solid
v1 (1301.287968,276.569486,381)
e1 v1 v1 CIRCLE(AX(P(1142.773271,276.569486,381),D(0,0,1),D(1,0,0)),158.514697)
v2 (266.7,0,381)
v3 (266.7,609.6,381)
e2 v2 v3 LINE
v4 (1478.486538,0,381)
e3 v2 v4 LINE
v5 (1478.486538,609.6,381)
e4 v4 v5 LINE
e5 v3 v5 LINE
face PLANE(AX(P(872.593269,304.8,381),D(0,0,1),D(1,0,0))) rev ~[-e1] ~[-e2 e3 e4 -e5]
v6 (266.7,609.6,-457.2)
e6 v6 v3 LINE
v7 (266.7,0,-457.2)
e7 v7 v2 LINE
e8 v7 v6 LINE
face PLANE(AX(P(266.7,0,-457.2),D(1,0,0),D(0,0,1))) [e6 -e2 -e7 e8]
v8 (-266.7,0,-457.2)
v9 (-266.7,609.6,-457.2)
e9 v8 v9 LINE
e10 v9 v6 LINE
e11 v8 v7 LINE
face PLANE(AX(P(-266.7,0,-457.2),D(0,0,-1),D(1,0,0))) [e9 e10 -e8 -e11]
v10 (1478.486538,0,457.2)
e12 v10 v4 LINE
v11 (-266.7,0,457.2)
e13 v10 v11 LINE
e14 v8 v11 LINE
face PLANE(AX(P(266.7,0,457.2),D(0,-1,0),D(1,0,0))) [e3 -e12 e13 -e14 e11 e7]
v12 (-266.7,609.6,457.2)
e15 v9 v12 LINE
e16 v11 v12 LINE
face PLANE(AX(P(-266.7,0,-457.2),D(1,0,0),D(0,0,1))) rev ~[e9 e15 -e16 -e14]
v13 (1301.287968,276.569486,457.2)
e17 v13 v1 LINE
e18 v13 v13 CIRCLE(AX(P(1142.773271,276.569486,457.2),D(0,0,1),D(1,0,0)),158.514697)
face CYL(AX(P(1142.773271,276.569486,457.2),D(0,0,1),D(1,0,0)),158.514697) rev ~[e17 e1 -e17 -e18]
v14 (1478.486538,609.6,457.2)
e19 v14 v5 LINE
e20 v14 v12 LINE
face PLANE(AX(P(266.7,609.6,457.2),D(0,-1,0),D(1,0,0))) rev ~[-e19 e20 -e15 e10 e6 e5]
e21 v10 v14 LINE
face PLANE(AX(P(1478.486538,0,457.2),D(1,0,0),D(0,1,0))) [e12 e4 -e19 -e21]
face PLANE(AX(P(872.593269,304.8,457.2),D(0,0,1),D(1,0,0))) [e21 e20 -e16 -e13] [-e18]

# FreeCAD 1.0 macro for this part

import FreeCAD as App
import Part
import Sketcher
from FreeCAD import Vector
Q = App.Units.Quantity


def add_polygon(sketch, points):
    """Adds a closed chain of lines whose ends are joined by coincident constraints."""
    first, n = sketch.GeometryCount, len(points)
    for a, b in zip(points, points[1:] + points[:1]):
        sketch.addGeometry(Part.LineSegment(App.Vector(*a, 0), App.Vector(*b, 0)), False)
    for i in range(n):
        sketch.addConstraint(Sketcher.Constraint("Coincident", first + i, 2, first + (i + 1) % n, 1))

doc = App.newDocument("Part")
body = doc.addObject("PartDesign::Body", "Body")

sketch1 = body.newObject("Sketcher::SketchObject", "Sketch")
sketch1.AttachmentSupport = (doc.getObject("XZ_Plane"), [""])
sketch1.MapMode = "FlatFace"
add_polygon(sketch1, [(-267, 457), (-267, -457), (267, -457), (267, 457)])
sketch1.addConstraint([
    Sketcher.Constraint("Vertical", 0),
    Sketcher.Constraint("Horizontal", 1),
    Sketcher.Constraint("Vertical", 2),
    Sketcher.Constraint("Horizontal", 3),
    Sketcher.Constraint("Symmetric", 0, 2, 2, 2, -1, 1),
    Sketcher.Constraint("DistanceX", 1, 1, 1, 2, Q("21 in")),
    Sketcher.Constraint("DistanceY", 0, 2, 0, 1, Q("36 in")),
])
pad1 = body.newObject("PartDesign::Pad", "Pad")
pad1.Profile = sketch1
pad1.Length = Q("24 in")
pad1.Reversed = True

sketch2 = body.newObject("Sketcher::SketchObject", "Sketch001")
sketch2.AttachmentSupport = (doc.getObject("XY_Plane"), [""])
sketch2.MapMode = "FlatFace"
sketch2.AttachmentOffset = App.Placement(Vector(0, 0, 18 * 25.4), App.Rotation())
add_polygon(sketch2, [(267, 610), (267, 0), (1478, 0), (1478, 610)])
sketch2.addConstraint([
    Sketcher.Constraint("Vertical", 0),
    Sketcher.Constraint("Horizontal", 1),
    Sketcher.Constraint("Vertical", 2),
    Sketcher.Constraint("Horizontal", 3),
    Sketcher.Constraint("PointOnObject", 0, 2, -1),
    Sketcher.Constraint("DistanceY", 0, 2, 0, 1, Q("24 in")),
    Sketcher.Constraint("DistanceX", -1, 1, 0, 2, Q("10.5 in")),
    Sketcher.Constraint("DistanceX", 1, 1, 1, 2, 1211.786538),
])
pad2 = body.newObject("PartDesign::Pad", "Pad001")
pad2.Profile = sketch2
pad2.Length = Q("3 in")
pad2.Reversed = True

sketch3 = body.newObject("Sketcher::SketchObject", "Sketch002")
sketch3.AttachmentSupport = (doc.getObject("XY_Plane"), [""])
sketch3.MapMode = "FlatFace"
sketch3.AttachmentOffset = App.Placement(Vector(0, 0, 18 * 25.4), App.Rotation())
sketch3.addGeometry(Part.Circle(Vector(1143, 277, 0), Vector(0, 0, 1), 159), False)
sketch3.addConstraint([
    Sketcher.Constraint("Diameter", 0, 317.029394),
    Sketcher.Constraint("DistanceX", -1, 1, 0, 3, 1142.773271),
    Sketcher.Constraint("DistanceY", -1, 1, 0, 3, 276.569486),
])
pocket1 = body.newObject("PartDesign::Pocket", "Pocket")
pocket1.Profile = sketch3
pocket1.Type = "ThroughAll"

doc.recompute()
